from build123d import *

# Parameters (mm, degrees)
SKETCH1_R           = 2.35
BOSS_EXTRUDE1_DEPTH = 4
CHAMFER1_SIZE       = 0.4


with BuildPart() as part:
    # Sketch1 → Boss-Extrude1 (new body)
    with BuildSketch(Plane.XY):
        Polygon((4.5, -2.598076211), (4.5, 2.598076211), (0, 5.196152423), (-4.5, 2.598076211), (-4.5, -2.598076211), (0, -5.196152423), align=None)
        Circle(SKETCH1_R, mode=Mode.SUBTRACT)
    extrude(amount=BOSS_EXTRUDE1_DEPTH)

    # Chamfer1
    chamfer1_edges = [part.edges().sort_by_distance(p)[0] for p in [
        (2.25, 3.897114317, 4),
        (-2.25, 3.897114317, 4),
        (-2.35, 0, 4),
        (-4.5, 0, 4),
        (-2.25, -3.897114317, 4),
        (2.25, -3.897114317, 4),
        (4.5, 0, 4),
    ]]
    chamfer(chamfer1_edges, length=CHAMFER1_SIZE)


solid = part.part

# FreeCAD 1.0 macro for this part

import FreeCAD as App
import Part
import Sketcher

V = App.Vector
Q = App.Units.Quantity


def edges_at(feature, points):
    """Names of the edges that pass closest to the given points."""
    edges = feature.Shape.Edges
    near = lambda p: min(range(len(edges)), key=lambda i: edges[i].distToShape(Part.Vertex(*p))[0])
    return sorted({f"Edge{near(p) + 1}" for p in points})


def add_polygon(sketch, points):
    """Adds a closed chain of lines whose ends are joined by coincident constraints."""
    first, n = sketch.GeometryCount, len(points)
    for a, b in zip(points, points[1:] + points[:1]):
        sketch.addGeometry(Part.LineSegment(App.Vector(*a, 0), App.Vector(*b, 0)), False)
    for i in range(n):
        sketch.addConstraint(Sketcher.Constraint("Coincident", first + i, 2, first + (i + 1) % n, 1))

doc = App.newDocument("Part")
params = doc.addObject("Spreadsheet::Sheet", "Params")
for row, (alias, value) in enumerate([
    ("sketch1_diameter", "4.7 mm"),
    ("pad1_length", "4 mm"),
    ("chamfer_size", "0.4 mm"),
], start=1):
    params.set(f"A{row}", alias)
    params.set(f"B{row}", "=" + value)
    params.setAlias(f"B{row}", alias)

body = doc.addObject("PartDesign::Body", "Body")

sketch1 = body.newObject("Sketcher::SketchObject", "Sketch")
sketch1.AttachmentSupport = (doc.getObject("XY_Plane"), [""])
sketch1.MapMode = "FlatFace"
add_polygon(sketch1, [(4.5, -2.6), (4.5, 2.6), (0, 5.2), (-4.5, 2.6), (-4.5, -2.6), (0, -5.2)])
sketch1.addGeometry(Part.Circle(V(0, 0, 0), V(0, 0, 1), 2.4), False)
sketch1.addConstraint(Sketcher.Constraint("Vertical", 0))
sketch1.addConstraint(Sketcher.Constraint("Vertical", 3))
sketch1.addConstraint(Sketcher.Constraint("Coincident", 6, 3, -1, 1))
sketch1.addConstraint(Sketcher.Constraint("Symmetric", 0, 2, 3, 2, -1, 1))
sketch1.addConstraint(Sketcher.Constraint("Symmetric", 1, 2, 4, 2, -1, 1))
sketch1.addConstraint(Sketcher.Constraint("PointOnObject", 1, 2, -2))
sketch1.addConstraint(Sketcher.Constraint("Parallel", 2, 5))
sketch1.addConstraint(Sketcher.Constraint("Horizontal", 0, 2, 2, 2))
sketch1.addConstraint(Sketcher.Constraint("Diameter", 6, Q("4.7 mm")))
sketch1.addConstraint(Sketcher.Constraint("Angle", 1, Q("150 deg")))
sketch1.addConstraint(Sketcher.Constraint("DistanceX", 2, 2, 0, 2, Q("9 mm")))
sketch1.addConstraint(Sketcher.Constraint("DistanceY", 0, 1, 0, 2, Q("5.196152 mm")))
sketch1.setExpression("Constraints[14]", "Params.sketch1_diameter")
pad1 = body.newObject("PartDesign::Pad", "Pad")
pad1.Profile = sketch1
pad1.setExpression("Length", "Params.pad1_length")
doc.recompute()

chamfer = body.newObject("PartDesign::Chamfer", "Chamfer")
chamfer.Base = (pad1, edges_at(pad1, [
    (2.25, 3.897, 4),
    (-2.25, 3.897, 4),
    (-2.35, 0, 4),
    (-4.5, 0, 4),
    (-2.25, -3.897, 4),
    (2.25, -3.897, 4),
    (4.5, 0, 4),
]))
chamfer.setExpression("Size", "Params.chamfer_size")

doc.recompute()
